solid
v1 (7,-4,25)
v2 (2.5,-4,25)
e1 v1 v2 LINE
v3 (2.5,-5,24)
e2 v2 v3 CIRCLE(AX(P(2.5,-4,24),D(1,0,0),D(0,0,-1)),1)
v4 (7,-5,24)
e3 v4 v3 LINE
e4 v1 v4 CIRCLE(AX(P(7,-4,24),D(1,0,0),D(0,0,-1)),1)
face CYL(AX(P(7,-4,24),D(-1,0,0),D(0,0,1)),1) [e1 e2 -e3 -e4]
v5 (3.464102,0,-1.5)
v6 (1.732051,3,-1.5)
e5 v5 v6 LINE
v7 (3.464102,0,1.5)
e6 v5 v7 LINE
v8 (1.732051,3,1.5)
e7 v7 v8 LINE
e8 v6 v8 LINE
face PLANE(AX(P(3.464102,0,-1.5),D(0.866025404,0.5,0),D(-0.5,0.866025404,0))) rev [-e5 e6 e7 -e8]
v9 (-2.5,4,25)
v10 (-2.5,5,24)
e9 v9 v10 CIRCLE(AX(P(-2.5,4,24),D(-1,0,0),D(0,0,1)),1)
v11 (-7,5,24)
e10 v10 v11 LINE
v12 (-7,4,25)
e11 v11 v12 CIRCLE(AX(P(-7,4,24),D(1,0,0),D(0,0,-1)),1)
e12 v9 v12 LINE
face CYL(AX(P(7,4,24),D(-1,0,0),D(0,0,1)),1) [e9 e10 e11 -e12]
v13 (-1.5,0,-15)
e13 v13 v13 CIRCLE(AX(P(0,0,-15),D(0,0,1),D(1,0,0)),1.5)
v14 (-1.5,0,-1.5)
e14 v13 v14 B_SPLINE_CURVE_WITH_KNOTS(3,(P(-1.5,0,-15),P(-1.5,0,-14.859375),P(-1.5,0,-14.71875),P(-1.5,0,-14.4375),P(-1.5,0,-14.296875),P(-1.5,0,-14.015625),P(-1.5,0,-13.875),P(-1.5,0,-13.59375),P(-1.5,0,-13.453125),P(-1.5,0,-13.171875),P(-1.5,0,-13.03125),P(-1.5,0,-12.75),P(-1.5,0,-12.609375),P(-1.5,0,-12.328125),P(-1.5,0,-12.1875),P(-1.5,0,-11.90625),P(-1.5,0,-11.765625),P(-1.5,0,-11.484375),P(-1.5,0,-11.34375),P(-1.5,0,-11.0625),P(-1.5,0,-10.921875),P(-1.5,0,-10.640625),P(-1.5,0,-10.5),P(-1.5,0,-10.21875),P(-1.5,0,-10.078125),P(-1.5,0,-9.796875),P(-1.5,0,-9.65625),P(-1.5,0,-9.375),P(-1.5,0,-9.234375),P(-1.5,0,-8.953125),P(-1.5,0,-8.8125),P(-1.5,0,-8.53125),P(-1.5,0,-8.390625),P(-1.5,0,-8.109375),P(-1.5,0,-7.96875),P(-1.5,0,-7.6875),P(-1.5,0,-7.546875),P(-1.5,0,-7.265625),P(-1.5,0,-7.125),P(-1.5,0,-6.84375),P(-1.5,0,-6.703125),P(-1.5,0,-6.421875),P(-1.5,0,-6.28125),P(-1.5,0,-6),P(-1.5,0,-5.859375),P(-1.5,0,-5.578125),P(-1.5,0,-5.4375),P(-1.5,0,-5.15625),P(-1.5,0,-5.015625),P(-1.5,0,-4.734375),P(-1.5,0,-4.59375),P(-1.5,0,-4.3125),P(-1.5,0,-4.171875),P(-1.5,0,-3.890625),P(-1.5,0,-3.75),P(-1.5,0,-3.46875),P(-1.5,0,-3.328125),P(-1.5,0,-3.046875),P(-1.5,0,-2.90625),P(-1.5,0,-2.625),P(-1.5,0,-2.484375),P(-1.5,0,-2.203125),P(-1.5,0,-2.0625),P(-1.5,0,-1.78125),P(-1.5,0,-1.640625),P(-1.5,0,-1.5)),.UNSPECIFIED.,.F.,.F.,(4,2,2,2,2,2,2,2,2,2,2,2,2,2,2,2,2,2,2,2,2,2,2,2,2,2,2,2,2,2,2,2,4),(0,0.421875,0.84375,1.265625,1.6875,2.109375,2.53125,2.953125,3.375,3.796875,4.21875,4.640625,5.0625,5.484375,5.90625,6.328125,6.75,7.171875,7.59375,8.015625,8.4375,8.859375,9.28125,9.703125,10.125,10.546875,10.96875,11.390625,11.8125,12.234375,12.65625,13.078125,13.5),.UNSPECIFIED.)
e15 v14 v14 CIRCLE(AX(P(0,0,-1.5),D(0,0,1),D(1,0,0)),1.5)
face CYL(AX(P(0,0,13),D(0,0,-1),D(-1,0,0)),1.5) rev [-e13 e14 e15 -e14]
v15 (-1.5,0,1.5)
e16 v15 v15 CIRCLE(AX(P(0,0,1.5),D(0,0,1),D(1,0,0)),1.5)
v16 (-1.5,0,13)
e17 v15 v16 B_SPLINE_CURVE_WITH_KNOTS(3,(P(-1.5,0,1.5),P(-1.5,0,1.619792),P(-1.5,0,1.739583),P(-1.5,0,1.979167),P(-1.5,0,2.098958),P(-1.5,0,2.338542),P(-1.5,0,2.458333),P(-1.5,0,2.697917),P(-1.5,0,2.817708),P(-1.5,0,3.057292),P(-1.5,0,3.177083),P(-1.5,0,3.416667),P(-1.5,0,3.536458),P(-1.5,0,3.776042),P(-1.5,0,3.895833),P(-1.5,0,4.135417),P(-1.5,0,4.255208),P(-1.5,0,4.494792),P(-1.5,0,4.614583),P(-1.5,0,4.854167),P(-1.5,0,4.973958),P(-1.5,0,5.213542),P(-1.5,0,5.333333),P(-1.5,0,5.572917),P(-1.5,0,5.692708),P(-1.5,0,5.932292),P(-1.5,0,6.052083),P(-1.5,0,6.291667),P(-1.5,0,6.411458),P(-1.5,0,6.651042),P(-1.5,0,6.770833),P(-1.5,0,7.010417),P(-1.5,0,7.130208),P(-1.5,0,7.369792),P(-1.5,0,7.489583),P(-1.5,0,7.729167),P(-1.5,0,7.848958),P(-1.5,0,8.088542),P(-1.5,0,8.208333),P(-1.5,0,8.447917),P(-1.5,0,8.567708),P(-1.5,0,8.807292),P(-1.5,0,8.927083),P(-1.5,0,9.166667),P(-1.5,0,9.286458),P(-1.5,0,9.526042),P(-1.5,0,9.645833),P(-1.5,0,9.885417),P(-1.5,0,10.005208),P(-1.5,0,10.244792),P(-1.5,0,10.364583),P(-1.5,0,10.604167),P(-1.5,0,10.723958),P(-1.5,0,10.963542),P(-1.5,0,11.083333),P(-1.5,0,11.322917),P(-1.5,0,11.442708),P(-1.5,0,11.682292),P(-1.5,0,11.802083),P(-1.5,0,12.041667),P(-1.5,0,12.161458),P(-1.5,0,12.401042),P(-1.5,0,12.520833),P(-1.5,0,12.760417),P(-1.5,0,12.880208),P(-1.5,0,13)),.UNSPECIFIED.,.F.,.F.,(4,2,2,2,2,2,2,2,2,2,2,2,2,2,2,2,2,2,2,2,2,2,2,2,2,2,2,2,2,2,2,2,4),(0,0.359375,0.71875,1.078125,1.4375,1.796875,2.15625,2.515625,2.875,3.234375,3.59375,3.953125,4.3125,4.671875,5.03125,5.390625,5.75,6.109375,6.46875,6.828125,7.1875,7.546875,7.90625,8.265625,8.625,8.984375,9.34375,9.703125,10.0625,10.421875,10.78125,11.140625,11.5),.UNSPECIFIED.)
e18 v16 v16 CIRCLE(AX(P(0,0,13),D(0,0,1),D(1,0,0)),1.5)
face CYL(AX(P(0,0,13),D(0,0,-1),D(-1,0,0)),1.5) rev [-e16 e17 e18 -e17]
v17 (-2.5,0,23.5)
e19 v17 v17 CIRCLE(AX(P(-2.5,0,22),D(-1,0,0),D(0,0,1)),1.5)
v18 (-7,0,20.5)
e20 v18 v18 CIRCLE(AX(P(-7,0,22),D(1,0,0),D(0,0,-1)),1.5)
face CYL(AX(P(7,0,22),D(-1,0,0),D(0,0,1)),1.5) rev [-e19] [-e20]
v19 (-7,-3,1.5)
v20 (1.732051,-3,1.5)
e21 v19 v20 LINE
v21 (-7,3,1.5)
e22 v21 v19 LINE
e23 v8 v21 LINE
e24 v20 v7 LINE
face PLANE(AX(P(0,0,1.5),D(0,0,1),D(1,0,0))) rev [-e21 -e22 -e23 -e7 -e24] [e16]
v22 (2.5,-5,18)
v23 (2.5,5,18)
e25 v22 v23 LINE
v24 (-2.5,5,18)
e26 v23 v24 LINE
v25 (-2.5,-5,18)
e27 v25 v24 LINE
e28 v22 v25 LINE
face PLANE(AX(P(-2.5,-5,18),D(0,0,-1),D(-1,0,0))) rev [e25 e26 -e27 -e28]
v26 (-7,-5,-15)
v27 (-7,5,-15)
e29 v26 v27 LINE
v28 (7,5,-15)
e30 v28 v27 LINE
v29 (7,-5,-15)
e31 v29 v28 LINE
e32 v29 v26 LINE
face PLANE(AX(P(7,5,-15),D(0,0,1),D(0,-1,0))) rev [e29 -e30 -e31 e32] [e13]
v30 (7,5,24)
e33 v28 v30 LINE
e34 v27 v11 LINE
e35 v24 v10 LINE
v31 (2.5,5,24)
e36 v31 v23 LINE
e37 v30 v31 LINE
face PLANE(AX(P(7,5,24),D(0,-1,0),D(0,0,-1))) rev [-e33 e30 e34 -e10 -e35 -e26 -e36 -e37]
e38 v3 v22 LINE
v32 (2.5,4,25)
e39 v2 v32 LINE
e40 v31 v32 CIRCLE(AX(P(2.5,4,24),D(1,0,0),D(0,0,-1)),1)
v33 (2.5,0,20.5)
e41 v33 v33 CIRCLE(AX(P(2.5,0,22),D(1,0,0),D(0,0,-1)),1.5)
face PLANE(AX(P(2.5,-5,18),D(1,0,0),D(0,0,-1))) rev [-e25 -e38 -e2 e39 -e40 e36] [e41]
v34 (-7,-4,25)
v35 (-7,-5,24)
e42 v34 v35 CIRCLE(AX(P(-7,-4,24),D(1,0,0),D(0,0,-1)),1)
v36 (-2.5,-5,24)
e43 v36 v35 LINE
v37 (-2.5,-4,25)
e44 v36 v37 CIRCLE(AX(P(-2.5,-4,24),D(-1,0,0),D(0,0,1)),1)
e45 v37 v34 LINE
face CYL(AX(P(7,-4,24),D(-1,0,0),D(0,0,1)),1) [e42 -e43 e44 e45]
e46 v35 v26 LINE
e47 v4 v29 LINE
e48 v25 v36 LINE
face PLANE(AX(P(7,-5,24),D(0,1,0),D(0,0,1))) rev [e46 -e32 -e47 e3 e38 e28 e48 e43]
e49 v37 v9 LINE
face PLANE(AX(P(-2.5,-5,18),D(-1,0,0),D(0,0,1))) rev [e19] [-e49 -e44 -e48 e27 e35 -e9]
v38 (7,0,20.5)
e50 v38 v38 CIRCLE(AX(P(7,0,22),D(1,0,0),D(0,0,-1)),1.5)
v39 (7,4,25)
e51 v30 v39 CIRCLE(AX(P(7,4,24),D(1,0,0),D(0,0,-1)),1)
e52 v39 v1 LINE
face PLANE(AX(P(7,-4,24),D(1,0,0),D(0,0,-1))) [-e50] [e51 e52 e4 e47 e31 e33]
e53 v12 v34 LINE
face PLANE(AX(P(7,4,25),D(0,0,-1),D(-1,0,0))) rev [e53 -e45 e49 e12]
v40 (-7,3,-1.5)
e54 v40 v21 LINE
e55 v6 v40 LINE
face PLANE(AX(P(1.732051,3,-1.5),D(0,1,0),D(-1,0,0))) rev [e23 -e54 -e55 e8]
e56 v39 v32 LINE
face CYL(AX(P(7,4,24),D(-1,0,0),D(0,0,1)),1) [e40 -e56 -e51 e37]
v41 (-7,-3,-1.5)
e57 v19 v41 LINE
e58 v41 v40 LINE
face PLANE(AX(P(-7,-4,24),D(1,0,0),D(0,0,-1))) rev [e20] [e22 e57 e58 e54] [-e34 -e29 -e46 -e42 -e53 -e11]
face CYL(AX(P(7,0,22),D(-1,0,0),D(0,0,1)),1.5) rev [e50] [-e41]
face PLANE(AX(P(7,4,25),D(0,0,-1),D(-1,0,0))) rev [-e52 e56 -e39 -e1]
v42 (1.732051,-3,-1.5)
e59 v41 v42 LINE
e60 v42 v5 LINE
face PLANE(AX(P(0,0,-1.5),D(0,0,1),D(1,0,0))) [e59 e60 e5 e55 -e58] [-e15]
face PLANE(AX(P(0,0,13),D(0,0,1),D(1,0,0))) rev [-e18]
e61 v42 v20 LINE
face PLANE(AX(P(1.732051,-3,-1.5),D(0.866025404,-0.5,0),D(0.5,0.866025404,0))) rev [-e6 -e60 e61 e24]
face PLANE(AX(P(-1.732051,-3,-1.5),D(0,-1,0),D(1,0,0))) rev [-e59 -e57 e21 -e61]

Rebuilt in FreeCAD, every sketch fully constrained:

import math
import FreeCAD as App
import Part
import Sketcher
from FreeCAD import Vector
Q = App.Units.Quantity


def add_polygon(sketch, points):
    """Adds a closed chain of lines whose ends are joined by coincident constraints."""
    first, n = sketch.GeometryCount, len(points)
    for a, b in zip(points, points[1:] + points[:1]):
        sketch.addGeometry(Part.LineSegment(App.Vector(*a, 0), App.Vector(*b, 0)), False)
    for i in range(n):
        sketch.addConstraint(Sketcher.Constraint("Coincident", first + i, 2, first + (i + 1) % n, 1))

doc = App.newDocument("Part")
body = doc.addObject("PartDesign::Body", "Body")

# Sketch on YZ plane
sketch1 = doc.addObject("Sketcher::SketchObject", "Sketch")
body.addObject(sketch1)
sketch1.AttachmentSupport = (doc.YZ_Plane, [""])
sketch1.MapMode = "FlatFace"
sketch1.addGeometry(Part.LineSegment(Vector(5, -15, 0), Vector(5, 24, 0)), False)
sketch1.addGeometry(Part.ArcOfCircle(Part.Circle(Vector(4, 24, 0), Vector(0, 0, 1), 1), math.radians(0), math.radians(90)), False)
sketch1.addGeometry(Part.LineSegment(Vector(4, 25, 0), Vector(-4, 25, 0)), False)
sketch1.addGeometry(Part.ArcOfCircle(Part.Circle(Vector(-4, 24, 0), Vector(0, 0, 1), 1), math.radians(90), math.radians(180)), False)
sketch1.addGeometry(Part.LineSegment(Vector(-5, 24, 0), Vector(-5, -15, 0)), False)
sketch1.addGeometry(Part.LineSegment(Vector(-5, -15, 0), Vector(5, -15, 0)), False)
sketch1.addGeometry(Part.Circle(Vector(0, 22, 0), Vector(0, 0, 1), 1.5), False)
sketch1.addConstraint(Sketcher.Constraint("Tangent", 0, 2, 1, 1))
sketch1.addConstraint(Sketcher.Constraint("Tangent", 1, 2, 2, 1))
sketch1.addConstraint(Sketcher.Constraint("Tangent", 2, 2, 3, 1))
sketch1.addConstraint(Sketcher.Constraint("Tangent", 3, 2, 4, 1))
sketch1.addConstraint(Sketcher.Constraint("Coincident", 4, 2, 5, 1))
sketch1.addConstraint(Sketcher.Constraint("Coincident", 5, 2, 0, 1))
sketch1.addConstraint(Sketcher.Constraint("Vertical", 0))
sketch1.addConstraint(Sketcher.Constraint("Horizontal", 2))
sketch1.addConstraint(Sketcher.Constraint("Vertical", 4))
sketch1.addConstraint(Sketcher.Constraint("Horizontal", 5))
sketch1.addConstraint(Sketcher.Constraint("Equal", 1, 3))
sketch1.addConstraint(Sketcher.Constraint("PointOnObject", 6, 3, -2))
sketch1.addConstraint(Sketcher.Constraint("Diameter", 6, 3.0))
sketch1.addConstraint(Sketcher.Constraint("Radius", 1, 1.0))
sketch1.addConstraint(Sketcher.Constraint("DistanceX", 2, 2, 2, 1, 8.0))
sketch1.addConstraint(Sketcher.Constraint("DistanceY", 0, 1, 0, 2, 39.0))
sketch1.addConstraint(Sketcher.Constraint("DistanceX", -1, 1, 1, 3, 4.0))
sketch1.addConstraint(Sketcher.Constraint("DistanceY", -1, 1, 1, 3, 24.0))
sketch1.addConstraint(Sketcher.Constraint("DistanceY", -1, 1, 6, 3, 22.0))
pad1 = doc.addObject("PartDesign::Pad", "Pad")
body.addObject(pad1)
pad1.Profile = sketch1
pad1.Length = 14
pad1.Midplane = True

# Sketch on XY plane
sketch2 = doc.addObject("Sketcher::SketchObject", "Sketch001")
body.addObject(sketch2)
sketch2.AttachmentSupport = (doc.XY_Plane, [""])
sketch2.MapMode = "FlatFace"
sketch2.addGeometry(Part.Circle(Vector(0, 0, 0), Vector(0, 0, 1), 1.5), False)
sketch2.addConstraint(Sketcher.Constraint("Coincident", 0, 3, -1, 1))
sketch2.addConstraint(Sketcher.Constraint("Diameter", 0, 3.0))
pocket1 = doc.addObject("PartDesign::Pocket", "Pocket")
body.addObject(pocket1)
pocket1.Profile = sketch2
pocket1.Type = "TwoLengths"
pocket1.Length = 13
pocket1.Length2 = 27.438608
pocket1.Reversed = True

# Sketch on XZ plane
sketch3 = doc.addObject("Sketcher::SketchObject", "Sketch002")
body.addObject(sketch3)
sketch3.AttachmentSupport = (doc.XZ_Plane, [""])
sketch3.MapMode = "FlatFace"
add_polygon(sketch3, [(-2, 18), (-2, 25), (2, 25), (2, 18)])  # lines 0-3
sketch3.addConstraint(Sketcher.Constraint("Vertical", 0))
sketch3.addConstraint(Sketcher.Constraint("Horizontal", 1))
sketch3.addConstraint(Sketcher.Constraint("Vertical", 2))
sketch3.addConstraint(Sketcher.Constraint("Horizontal", 3))
sketch3.addConstraint(Sketcher.Constraint("DistanceX", 1, 1, 1, 2, 5.0))
sketch3.addConstraint(Sketcher.Constraint("DistanceY", 0, 1, 0, 2, 7.0))
sketch3.addConstraint(Sketcher.Constraint("DistanceY", -1, 1, 0, 2, 25.0))
sketch3.addConstraint(Sketcher.Constraint("DistanceX", 0, 2, -1, 1, 2.5))
pocket2 = doc.addObject("PartDesign::Pocket", "Pocket001")
body.addObject(pocket2)
pocket2.Profile = sketch3
pocket2.Type = "ThroughAll"
pocket2.Midplane = True

# Sketch on XY plane
sketch4 = doc.addObject("Sketcher::SketchObject", "Sketch003")
body.addObject(sketch4)
sketch4.AttachmentSupport = (doc.XY_Plane, [""])
sketch4.MapMode = "FlatFace"
add_polygon(sketch4, [(1.7, 3), (-1.7, 3), (-3.5, 0), (-1.7, -3), (1.7, -3), (3.5, 0)])  # lines 0-5
sketch4.addConstraint(Sketcher.Constraint("Horizontal", 0))
sketch4.addConstraint(Sketcher.Constraint("Horizontal", 3))
sketch4.addConstraint(Sketcher.Constraint("Symmetric", 0, 2, 3, 2, -1, 1))
sketch4.addConstraint(Sketcher.Constraint("Symmetric", 1, 2, 4, 2, -1, 1))
sketch4.addConstraint(Sketcher.Constraint("PointOnObject", 1, 2, -1))
sketch4.addConstraint(Sketcher.Constraint("Parallel", 2, 5))
sketch4.addConstraint(Sketcher.Constraint("Vertical", 0, 2, 2, 2))
sketch4.addConstraint(Sketcher.Constraint("Angle", 1, Q("-120 deg")))
sketch4.addConstraint(Sketcher.Constraint("DistanceY", -1, 1, 0, 2, 3.0))
sketch4.addConstraint(Sketcher.Constraint("DistanceX", 0, 2, 0, 1, 3.464102))
pocket3 = doc.addObject("PartDesign::Pocket", "Pocket002")
body.addObject(pocket3)
pocket3.Profile = sketch4
pocket3.Length = 3
pocket3.Midplane = True

# Sketch on YZ plane
sketch5 = doc.addObject("Sketcher::SketchObject", "Sketch004")
body.addObject(sketch5)
sketch5.AttachmentSupport = (doc.YZ_Plane, [""])
sketch5.MapMode = "FlatFace"
add_polygon(sketch5, [(3, 1.5), (-3, 1.5), (-3, -1.5), (3, -1.5)])  # lines 0-3
sketch5.addConstraint(Sketcher.Constraint("Horizontal", 0))
sketch5.addConstraint(Sketcher.Constraint("Vertical", 1))
sketch5.addConstraint(Sketcher.Constraint("Horizontal", 2))
sketch5.addConstraint(Sketcher.Constraint("Vertical", 3))
sketch5.addConstraint(Sketcher.Constraint("Symmetric", 0, 2, 2, 2, -1, 1))
sketch5.addConstraint(Sketcher.Constraint("DistanceX", 0, 2, 0, 1, 6.0))
sketch5.addConstraint(Sketcher.Constraint("DistanceY", 1, 2, 1, 1, 3.0))
pocket4 = doc.addObject("PartDesign::Pocket", "Pocket003")
body.addObject(pocket4)
pocket4.Profile = sketch5
pocket4.Type = "ThroughAll"

doc.recompute()
